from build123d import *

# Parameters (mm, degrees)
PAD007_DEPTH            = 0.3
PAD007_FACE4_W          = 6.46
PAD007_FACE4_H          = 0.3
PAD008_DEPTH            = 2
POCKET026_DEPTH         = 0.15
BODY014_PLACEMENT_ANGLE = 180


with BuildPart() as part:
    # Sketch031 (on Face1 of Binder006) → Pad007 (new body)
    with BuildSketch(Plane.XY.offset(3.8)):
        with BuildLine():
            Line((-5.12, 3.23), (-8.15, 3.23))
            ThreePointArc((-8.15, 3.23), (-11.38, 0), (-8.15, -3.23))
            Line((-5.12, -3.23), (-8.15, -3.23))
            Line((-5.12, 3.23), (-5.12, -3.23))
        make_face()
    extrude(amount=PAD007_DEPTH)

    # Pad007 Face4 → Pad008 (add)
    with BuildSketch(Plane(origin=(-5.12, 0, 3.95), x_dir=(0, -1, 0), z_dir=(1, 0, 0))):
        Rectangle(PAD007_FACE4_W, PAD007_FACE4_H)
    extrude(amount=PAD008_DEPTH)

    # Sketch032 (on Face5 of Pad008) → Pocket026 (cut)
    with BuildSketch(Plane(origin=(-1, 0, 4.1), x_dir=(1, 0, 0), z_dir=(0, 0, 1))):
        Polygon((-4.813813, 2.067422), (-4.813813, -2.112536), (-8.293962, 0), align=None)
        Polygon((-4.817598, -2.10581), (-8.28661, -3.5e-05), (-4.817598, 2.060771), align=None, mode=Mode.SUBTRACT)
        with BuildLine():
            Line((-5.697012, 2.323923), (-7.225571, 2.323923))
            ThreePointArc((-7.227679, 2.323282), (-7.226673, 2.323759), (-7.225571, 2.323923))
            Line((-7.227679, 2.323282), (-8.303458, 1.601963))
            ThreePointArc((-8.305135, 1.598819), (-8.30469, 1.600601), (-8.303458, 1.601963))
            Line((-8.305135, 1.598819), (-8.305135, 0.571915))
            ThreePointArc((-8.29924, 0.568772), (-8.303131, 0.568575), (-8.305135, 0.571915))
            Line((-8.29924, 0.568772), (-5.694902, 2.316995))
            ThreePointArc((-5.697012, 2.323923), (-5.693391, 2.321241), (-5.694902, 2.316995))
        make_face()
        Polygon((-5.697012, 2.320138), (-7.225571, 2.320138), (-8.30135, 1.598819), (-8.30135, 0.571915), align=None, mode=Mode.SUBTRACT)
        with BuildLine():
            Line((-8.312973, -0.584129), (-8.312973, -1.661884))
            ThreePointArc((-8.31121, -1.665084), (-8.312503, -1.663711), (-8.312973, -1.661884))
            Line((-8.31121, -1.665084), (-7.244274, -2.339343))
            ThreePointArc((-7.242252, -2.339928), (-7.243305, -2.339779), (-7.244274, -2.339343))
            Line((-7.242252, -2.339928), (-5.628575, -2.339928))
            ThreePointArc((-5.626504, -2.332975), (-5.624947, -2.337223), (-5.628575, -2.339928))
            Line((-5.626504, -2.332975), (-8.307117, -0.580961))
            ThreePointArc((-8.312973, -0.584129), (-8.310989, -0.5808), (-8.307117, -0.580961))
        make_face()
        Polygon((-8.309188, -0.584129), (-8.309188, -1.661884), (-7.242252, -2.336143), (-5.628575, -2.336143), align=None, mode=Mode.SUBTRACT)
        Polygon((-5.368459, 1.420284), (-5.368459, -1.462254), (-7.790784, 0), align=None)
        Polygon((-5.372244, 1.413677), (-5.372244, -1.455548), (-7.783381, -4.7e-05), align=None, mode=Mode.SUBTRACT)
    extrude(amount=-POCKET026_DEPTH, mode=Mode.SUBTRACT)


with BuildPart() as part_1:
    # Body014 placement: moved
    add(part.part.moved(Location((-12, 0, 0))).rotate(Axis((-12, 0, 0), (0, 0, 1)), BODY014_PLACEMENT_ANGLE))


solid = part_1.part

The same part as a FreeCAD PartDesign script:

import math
import FreeCAD as App
import Part
import Sketcher
Q = App.Units.Quantity


def add_polygon(sketch, points):
    """Adds a closed chain of lines whose ends are joined by coincident constraints."""
    first, n = sketch.GeometryCount, len(points)
    for a, b in zip(points, points[1:] + points[:1]):
        sketch.addGeometry(Part.LineSegment(App.Vector(*a, 0), App.Vector(*b, 0)), False)
    for i in range(n):
        sketch.addConstraint(Sketcher.Constraint("Coincident", first + i, 2, first + (i + 1) % n, 1))

doc = App.newDocument("Part")
params = doc.addObject("Spreadsheet::Sheet", "Params")
for row, (alias, value) in enumerate([
    ("sketch1_radius", "3.23 mm"),
    ("sketch1_width", "3.03 mm"),
    ("pad1_length", "0.3 mm"),
    ("sketch2_height", "0.3 mm"),
    ("sketch2_width", "6.46 mm"),
    ("pad2_length", "2 mm"),
    ("pocket1_length", "0.15 mm"),
], start=1):
    params.set(f"A{row}", alias)
    params.set(f"B{row}", "=" + value)
    params.setAlias(f"B{row}", alias)

body = doc.addObject("PartDesign::Body", "Body")

sketch1 = doc.addObject("Sketcher::SketchObject", "Sketch")
body.addObject(sketch1)
sketch1.AttachmentSupport = (doc.XY_Plane, [""])
sketch1.MapMode = "FlatFace"
sketch1.AttachmentOffset = App.Placement(App.Vector(0, 0, 3.8), App.Rotation())
sketch1.addGeometry(Part.LineSegment(App.Vector(-5.12, 3.23, 0), App.Vector(-8.15, 3.23, 0)), False)
sketch1.addGeometry(Part.ArcOfCircle(Part.Circle(App.Vector(-8.15, 0, 0), App.Vector(0, 0, 1), 3.23), math.radians(90), math.radians(270)), False)
sketch1.addGeometry(Part.LineSegment(App.Vector(-8.15, -3.23, 0), App.Vector(-5.12, -3.23, 0)), False)
sketch1.addGeometry(Part.LineSegment(App.Vector(-5.12, -3.23, 0), App.Vector(-5.12, 3.23, 0)), False)
sketch1.addConstraint(Sketcher.Constraint("Tangent", 0, 2, 1, 1))
sketch1.addConstraint(Sketcher.Constraint("Tangent", 1, 2, 2, 1))
sketch1.addConstraint(Sketcher.Constraint("Coincident", 2, 2, 3, 1))
sketch1.addConstraint(Sketcher.Constraint("Coincident", 3, 2, 0, 1))
sketch1.addConstraint(Sketcher.Constraint("Horizontal", 0))
sketch1.addConstraint(Sketcher.Constraint("Horizontal", 2))
sketch1.addConstraint(Sketcher.Constraint("Vertical", 3))
sketch1.addConstraint(Sketcher.Constraint("PointOnObject", 1, 3, -1))
sketch1.addConstraint(Sketcher.Constraint("Radius", 1, Q("3.23 mm")))
sketch1.addConstraint(Sketcher.Constraint("DistanceX", 0, 2, 0, 1, Q("3.03 mm")))
sketch1.addConstraint(Sketcher.Constraint("DistanceX", 1, 3, -1, 1, Q("8.15 mm")))
sketch1.setExpression("Constraints[8]", "Params.sketch1_radius")
sketch1.setExpression("Constraints[9]", "Params.sketch1_width")
pad1 = doc.addObject("PartDesign::Pad", "Pad")
body.addObject(pad1)
pad1.Profile = sketch1
pad1.setExpression("Length", "Params.pad1_length")

sketch2 = doc.addObject("Sketcher::SketchObject", "Sketch001")
body.addObject(sketch2)
sketch2.AttachmentSupport = (doc.YZ_Plane, [""])
sketch2.MapMode = "FlatFace"
sketch2.AttachmentOffset = App.Placement(App.Vector(0, 0, -5.12), App.Rotation())
add_polygon(sketch2, [(3.23, 3.8), (3.23, 4.1), (-3.23, 4.1), (-3.23, 3.8)])
sketch2.addConstraint(Sketcher.Constraint("Vertical", 0))
sketch2.addConstraint(Sketcher.Constraint("Horizontal", 1))
sketch2.addConstraint(Sketcher.Constraint("Vertical", 2))
sketch2.addConstraint(Sketcher.Constraint("Horizontal", 3))
sketch2.addConstraint(Sketcher.Constraint("DistanceY", 0, 1, 0, 2, Q("0.3 mm")))
sketch2.addConstraint(Sketcher.Constraint("DistanceX", 1, 2, 1, 1, Q("6.46 mm")))
sketch2.addConstraint(Sketcher.Constraint("DistanceY", -1, 1, 0, 2, Q("4.1 mm")))
sketch2.addConstraint(Sketcher.Constraint("DistanceX", -1, 1, 0, 2, Q("3.23 mm")))
sketch2.setExpression("Constraints[8]", "Params.sketch2_height")
sketch2.setExpression("Constraints[9]", "Params.sketch2_width")
pad2 = doc.addObject("PartDesign::Pad", "Pad001")
body.addObject(pad2)
pad2.Profile = sketch2
pad2.setExpression("Length", "Params.pad2_length")

sketch3 = doc.addObject("Sketcher::SketchObject", "Sketch002")
body.addObject(sketch3)
sketch3.AttachmentSupport = (doc.XY_Plane, [""])
sketch3.MapMode = "FlatFace"
sketch3.AttachmentOffset = App.Placement(App.Vector(0, 0, 4.1), App.Rotation())
add_polygon(sketch3, [(-5.813813, -2.112536), (-5.813813, 2.067422), (-9.293962, 0)])
add_polygon(sketch3, [(-5.817598, -2.10581), (-9.28661, -0.000035), (-5.817598, 2.060771)])
sketch3.addGeometry(Part.LineSegment(App.Vector(-6.697012, 2.323923, 0), App.Vector(-8.225571, 2.323923, 0)), False)
sketch3.addGeometry(Part.ArcOfCircle(Part.Circle(App.Vector(-8.22557, 2.320134, 0), App.Vector(0, 0, 1), 0.003789), math.radians(90.00989), math.radians(123.816999)), False)
sketch3.addGeometry(Part.LineSegment(App.Vector(-8.227679, 2.323282, 0), App.Vector(-9.303458, 1.601963, 0)), False)
sketch3.addGeometry(Part.ArcOfCircle(Part.Circle(App.Vector(-9.301354, 1.598821, 0), App.Vector(0, 0, 1), 0.003781), math.radians(123.814804), math.radians(180.034547)), False)
sketch3.addGeometry(Part.LineSegment(App.Vector(-9.305135, 1.598819, 0), App.Vector(-9.305135, 0.571915, 0)), False)
sketch3.addGeometry(Part.ArcOfCircle(Part.Circle(App.Vector(-9.30135, 0.571915, 0), App.Vector(0, 0, 1), 0.003785), math.radians(-179.999561), math.radians(-56.130275)), False)
sketch3.addGeometry(Part.LineSegment(App.Vector(-9.29924, 0.568772, 0), App.Vector(-6.694902, 2.316995, 0)), False)
sketch3.addGeometry(Part.ArcOfCircle(Part.Circle(App.Vector(-6.697012, 2.320138, 0), App.Vector(0, 0, 1), 0.003785), math.radians(-56.12355), math.radians(90.000954)), False)
add_polygon(sketch3, [(-8.225571, 2.320138), (-6.697012, 2.320138), (-9.30135, 0.571915), (-9.30135, 1.598819)])
sketch3.addGeometry(Part.LineSegment(App.Vector(-9.312973, -0.584129, 0), App.Vector(-9.312973, -1.661884, 0)), False)
sketch3.addGeometry(Part.ArcOfCircle(Part.Circle(App.Vector(-9.309188, -1.661884, 0), App.Vector(0, 0, 1), 0.003785), math.radians(179.997457), math.radians(237.706574)), False)
sketch3.addGeometry(Part.LineSegment(App.Vector(-9.31121, -1.665084, 0), App.Vector(-8.244274, -2.339343, 0)), False)
sketch3.addGeometry(Part.ArcOfCircle(Part.Circle(App.Vector(-8.242254, -2.336149, 0), App.Vector(0, 0, 1), 0.003779), math.radians(-122.307455), math.radians(-89.964703)), False)
sketch3.addGeometry(Part.LineSegment(App.Vector(-8.242252, -2.339928, 0), App.Vector(-6.628575, -2.339928, 0)), False)
sketch3.addGeometry(Part.ArcOfCircle(Part.Circle(App.Vector(-6.628574, -2.336143, 0), App.Vector(0, 0, 1), 0.003785), math.radians(-90.007872), math.radians(56.834806)), False)
sketch3.addGeometry(Part.LineSegment(App.Vector(-6.626504, -2.332975, 0), App.Vector(-9.307117, -0.580961, 0)), False)
sketch3.addGeometry(Part.ArcOfCircle(Part.Circle(App.Vector(-9.309188, -0.584129, 0), App.Vector(0, 0, 1), 0.003785), math.radians(56.825519), math.radians(179.999803)), False)
add_polygon(sketch3, [(-9.309188, -1.661884), (-9.309188, -0.584129), (-6.628575, -2.336143), (-8.242252, -2.336143)])
add_polygon(sketch3, [(-6.368459, -1.462254), (-6.368459, 1.420284), (-8.790784, 0)])
add_polygon(sketch3, [(-6.372244, 1.413677), (-6.372244, -1.455548), (-8.783381, -0.000047)])
sketch3.addConstraint(Sketcher.Constraint("Coincident", 6, 2, 7, 1))
sketch3.addConstraint(Sketcher.Constraint("Coincident", 7, 2, 8, 1))
sketch3.addConstraint(Sketcher.Constraint("Coincident", 8, 2, 9, 1))
sketch3.addConstraint(Sketcher.Constraint("Coincident", 9, 2, 10, 1))
sketch3.addConstraint(Sketcher.Constraint("Coincident", 10, 2, 11, 1))
sketch3.addConstraint(Sketcher.Constraint("Coincident", 11, 2, 12, 1))
sketch3.addConstraint(Sketcher.Constraint("Coincident", 12, 2, 13, 1))
sketch3.addConstraint(Sketcher.Constraint("Coincident", 13, 2, 6, 1))
sketch3.addConstraint(Sketcher.Constraint("Coincident", 18, 2, 19, 1))
sketch3.addConstraint(Sketcher.Constraint("Coincident", 19, 2, 20, 1))
sketch3.addConstraint(Sketcher.Constraint("Coincident", 20, 2, 21, 1))
sketch3.addConstraint(Sketcher.Constraint("Coincident", 21, 2, 22, 1))
sketch3.addConstraint(Sketcher.Constraint("Coincident", 22, 2, 23, 1))
sketch3.addConstraint(Sketcher.Constraint("Coincident", 23, 2, 24, 1))
sketch3.addConstraint(Sketcher.Constraint("Coincident", 24, 2, 25, 1))
sketch3.addConstraint(Sketcher.Constraint("Coincident", 25, 2, 18, 1))
sketch3.addConstraint(Sketcher.Constraint("Vertical", 0))
sketch3.addConstraint(Sketcher.Constraint("Vertical", 5))
sketch3.addConstraint(Sketcher.Constraint("Horizontal", 6))
sketch3.addConstraint(Sketcher.Constraint("Vertical", 10))
sketch3.addConstraint(Sketcher.Constraint("Horizontal", 14))
sketch3.addConstraint(Sketcher.Constraint("Vertical", 16))
sketch3.addConstraint(Sketcher.Constraint("Vertical", 18))
sketch3.addConstraint(Sketcher.Constraint("Horizontal", 22))
sketch3.addConstraint(Sketcher.Constraint("Vertical", 26))
sketch3.addConstraint(Sketcher.Constraint("Horizontal", 28))
sketch3.addConstraint(Sketcher.Constraint("Vertical", 30))
sketch3.addConstraint(Sketcher.Constraint("Vertical", 33))
sketch3.addConstraint(Sketcher.Constraint("Coincident", 14, 2, 13, 3))
sketch3.addConstraint(Sketcher.Constraint("Coincident", 15, 2, 11, 3))
sketch3.addConstraint(Sketcher.Constraint("Coincident", 16, 2, 9, 3))
sketch3.addConstraint(Sketcher.Constraint("Coincident", 17, 2, 7, 3))
sketch3.addConstraint(Sketcher.Constraint("Coincident", 26, 2, 25, 3))
sketch3.addConstraint(Sketcher.Constraint("Coincident", 27, 2, 23, 3))
sketch3.addConstraint(Sketcher.Constraint("Coincident", 28, 2, 21, 3))
sketch3.addConstraint(Sketcher.Constraint("Coincident", 29, 2, 19, 3))
sketch3.addConstraint(Sketcher.Constraint("Equal", 11, 13))
sketch3.addConstraint(Sketcher.Constraint("Equal", 13, 19))
sketch3.addConstraint(Sketcher.Constraint("Equal", 19, 23))
sketch3.addConstraint(Sketcher.Constraint("PointOnObject", 1, 2, -1))
sketch3.addConstraint(Sketcher.Constraint("PointOnObject", 31, 2, -1))
sketch3.addConstraint(Sketcher.Constraint("Parallel", 2, 3))
sketch3.addConstraint(Sketcher.Constraint("Parallel", 1, 4))
sketch3.addConstraint(Sketcher.Constraint("Parallel", 32, 34))
sketch3.addConstraint(Sketcher.Constraint("Parallel", 31, 35))
sketch3.addConstraint(Sketcher.Constraint("Horizontal", 11, 3, 10, 2))
sketch3.addConstraint(Sketcher.Constraint("Horizontal", 9, 2, 16, 2))
sketch3.addConstraint(Sketcher.Constraint("Horizontal", 19, 3, 18, 2))
sketch3.addConstraint(Sketcher.Constraint("Horizontal", 25, 2, 26, 2))
sketch3.addConstraint(Sketcher.Constraint("Vertical", 7, 3, 6, 2))
sketch3.addConstraint(Sketcher.Constraint("Vertical", 13, 2, 14, 2))
sketch3.addConstraint(Sketcher.Constraint("Vertical", 23, 3, 22, 2))
sketch3.addConstraint(Sketcher.Constraint("Vertical", 21, 2, 28, 2))
sketch3.addConstraint(Sketcher.Constraint("Equal", 12, 15))
sketch3.addConstraint(Sketcher.Constraint("Equal", 8, 17))
sketch3.addConstraint(Sketcher.Constraint("Equal", 24, 27))
sketch3.addConstraint(Sketcher.Constraint("Equal", 20, 29))
sketch3.addConstraint(Sketcher.Constraint("Radius", 7, Q("0.003789 mm")))
sketch3.addConstraint(Sketcher.Constraint("Distance", 31, Q("2.808 mm")))
sketch3.addConstraint(Sketcher.Constraint("DistanceX", 6, 2, 6, 1, Q("1.528559 mm")))
sketch3.addConstraint(Sketcher.Constraint("DistanceY", 5, 2, 5, 1, Q("4.166581 mm")))
sketch3.addConstraint(Sketcher.Constraint("DistanceY", 30, 1, 30, 2, Q("2.882538 mm")))
sketch3.addConstraint(Sketcher.Constraint("DistanceX", 4, 2, -1, 1, Q("5.817598 mm")))
sketch3.addConstraint(Sketcher.Constraint("DistanceY", 19, 3, 11, 3, Q("2.233799 mm")))
sketch3.addConstraint(Sketcher.Constraint("DistanceX", 9, 3, 21, 3, Q("1.059099 mm")))
sketch3.addConstraint(Sketcher.Constraint("DistanceX", 13, 3, 0, 2, Q("0.883199 mm")))
sketch3.addConstraint(Sketcher.Constraint("DistanceY", 9, 3, 0, 2, Q("0.468601 mm")))
sketch3.addConstraint(Sketcher.Constraint("DistanceY", 9, 3, 6, 2, Q("0.725102 mm")))
sketch3.addConstraint(Sketcher.Constraint("DistanceX", 18, 2, 20, 2, Q("1.068699 mm")))
sketch3.addConstraint(Sketcher.Constraint("DistanceX", 20, 2, 23, 3, Q("1.6157 mm")))
sketch3.addConstraint(Sketcher.Constraint("Distance", 1, Q("4.047922 mm")))
sketch3.addConstraint(Sketcher.Constraint("Distance", 3, Q("4.058119 mm")))
sketch3.addConstraint(Sketcher.Constraint("Distance", 24, Q("3.20238 mm")))
sketch3.addConstraint(Sketcher.Constraint("Distance", 32, Q("2.82946 mm")))
sketch3.addConstraint(Sketcher.Constraint("Distance", 35, Q("2.795031 mm")))
sketch3.addConstraint(Sketcher.Constraint("DistanceY", 0, 1, 0, 2, Q("4.179958 mm")))
sketch3.addConstraint(Sketcher.Constraint("DistanceY", 10, 2, 10, 1, Q("1.026904 mm")))
sketch3.addConstraint(Sketcher.Constraint("DistanceY", 18, 2, 18, 1, Q("1.077755 mm")))
sketch3.addConstraint(Sketcher.Constraint("DistanceX", 7, 3, -1, 1, Q("8.22557 mm")))
sketch3.addConstraint(Sketcher.Constraint("DistanceX", 11, 3, -1, 1, Q("9.30135 mm")))
sketch3.addConstraint(Sketcher.Constraint("DistanceX", 25, 3, -1, 1, Q("9.309188 mm")))
sketch3.addConstraint(Sketcher.Constraint("DistanceY", -1, 1, 4, 2, Q("2.060771 mm")))
sketch3.addConstraint(Sketcher.Constraint("DistanceX", 30, 2, -1, 1, Q("6.368459 mm")))
sketch3.addConstraint(Sketcher.Constraint("DistanceY", 33, 2, -1, 1, Q("1.455548 mm")))
sketch3.addConstraint(Sketcher.Constraint("DistanceX", 34, 2, -1, 1, Q("8.783381 mm")))
sketch3.addConstraint(Sketcher.Constraint("DistanceX", 7, 2, 7, 3, Q("0.002109 mm")))
sketch3.addConstraint(Sketcher.Constraint("DistanceX", 11, 3, 11, 2, Q("0.00211 mm")))
sketch3.addConstraint(Sketcher.Constraint("DistanceX", 23, 3, 23, 2, Q("0.00207 mm")))
pocket1 = doc.addObject("PartDesign::Pocket", "Pocket")
body.addObject(pocket1)
pocket1.Profile = sketch3
pocket1.setExpression("Length", "Params.pocket1_length")
body2 = doc.addObject("PartDesign::Body", "Body001")
doc.recompute()

body.Placement = App.Placement(App.Vector(-12, 0, 0), App.Rotation(App.Vector(0, 0, 1), 180))
boolean = doc.addObject("PartDesign::Boolean", "Boolean")
body2.addObject(boolean)
boolean.Type = "Fuse"
boolean.addObjects([body])

doc.recompute()
